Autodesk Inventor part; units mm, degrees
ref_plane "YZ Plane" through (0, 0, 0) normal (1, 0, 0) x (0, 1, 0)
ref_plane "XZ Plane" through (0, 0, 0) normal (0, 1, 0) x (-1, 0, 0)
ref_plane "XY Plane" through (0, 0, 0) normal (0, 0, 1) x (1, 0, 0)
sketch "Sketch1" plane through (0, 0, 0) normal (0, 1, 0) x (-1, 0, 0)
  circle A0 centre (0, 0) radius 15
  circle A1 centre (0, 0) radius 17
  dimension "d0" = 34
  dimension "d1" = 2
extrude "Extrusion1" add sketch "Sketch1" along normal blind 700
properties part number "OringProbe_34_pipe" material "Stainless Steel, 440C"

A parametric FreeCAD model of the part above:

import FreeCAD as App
import Part
import Sketcher

V = App.Vector
Q = App.Units.Quantity

doc = App.newDocument("Part")
params = doc.addObject("Spreadsheet::Sheet", "Params")
for row, (alias, value) in enumerate([
    ("sketch1_diameter", "34 mm"),
    ("sketch1_diameter2", "30 mm"),
    ("pad1_length", "700 mm"),
], start=1):
    params.set(f"A{row}", alias)
    params.set(f"B{row}", "=" + value)
    params.setAlias(f"B{row}", alias)

body = doc.addObject("PartDesign::Body", "Body")

# Sketch on XZ plane
sketch1 = body.newObject("Sketcher::SketchObject", "Sketch")
sketch1.AttachmentSupport = (doc.getObject("XZ_Plane"), [""])
sketch1.MapMode = "FlatFace"
sketch1.addGeometry(Part.Circle(V(0, 0, 0), V(0, 0, 1), 17), False)
sketch1.addGeometry(Part.Circle(V(0, 0, 0), V(0, 0, 1), 15), False)
sketch1.addConstraint(Sketcher.Constraint("Coincident", 0, 3, -1, 1))
sketch1.addConstraint(Sketcher.Constraint("Coincident", 1, 3, -1, 1))
sketch1.addConstraint(Sketcher.Constraint("Diameter", 0, Q("34 mm")))
sketch1.addConstraint(Sketcher.Constraint("Diameter", 1, Q("30 mm")))
sketch1.setExpression("Constraints[2]", "Params.sketch1_diameter")
sketch1.setExpression("Constraints[3]", "Params.sketch1_diameter2")
pad1 = body.newObject("PartDesign::Pad", "Pad")
pad1.Profile = sketch1
pad1.setExpression("Length", "Params.pad1_length")
pad1.Reversed = True

doc.recompute()
